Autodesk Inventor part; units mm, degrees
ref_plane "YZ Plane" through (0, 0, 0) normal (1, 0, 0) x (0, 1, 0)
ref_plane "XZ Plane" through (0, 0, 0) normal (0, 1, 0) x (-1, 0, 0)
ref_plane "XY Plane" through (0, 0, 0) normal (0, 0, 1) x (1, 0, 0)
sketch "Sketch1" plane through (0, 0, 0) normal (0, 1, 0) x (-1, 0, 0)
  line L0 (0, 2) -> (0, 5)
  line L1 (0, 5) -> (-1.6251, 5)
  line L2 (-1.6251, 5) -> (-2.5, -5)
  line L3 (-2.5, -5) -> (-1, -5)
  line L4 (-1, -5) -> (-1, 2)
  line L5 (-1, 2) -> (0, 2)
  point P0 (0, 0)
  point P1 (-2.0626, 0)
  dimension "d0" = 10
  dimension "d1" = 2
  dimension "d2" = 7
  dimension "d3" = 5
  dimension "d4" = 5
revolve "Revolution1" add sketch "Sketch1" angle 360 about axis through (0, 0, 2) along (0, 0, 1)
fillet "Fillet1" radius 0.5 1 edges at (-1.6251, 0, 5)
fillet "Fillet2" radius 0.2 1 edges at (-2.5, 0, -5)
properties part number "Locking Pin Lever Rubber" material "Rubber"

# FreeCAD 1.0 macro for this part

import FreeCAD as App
import Part
import Sketcher

V = App.Vector
Q = App.Units.Quantity


def edges_at(feature, points):
    """Names of the edges that pass closest to the given points."""
    edges = feature.Shape.Edges
    near = lambda p: min(range(len(edges)), key=lambda i: edges[i].distToShape(Part.Vertex(*p))[0])
    return sorted({f"Edge{near(p) + 1}" for p in points})


def add_polygon(sketch, points):
    """Adds a closed chain of lines whose ends are joined by coincident constraints."""
    first, n = sketch.GeometryCount, len(points)
    for a, b in zip(points, points[1:] + points[:1]):
        sketch.addGeometry(Part.LineSegment(App.Vector(*a, 0), App.Vector(*b, 0)), False)
    for i in range(n):
        sketch.addConstraint(Sketcher.Constraint("Coincident", first + i, 2, first + (i + 1) % n, 1))

doc = App.newDocument("Part")
body = doc.addObject("PartDesign::Body", "Body")

sketch1 = doc.addObject("Sketcher::SketchObject", "Sketch")
body.addObject(sketch1)
sketch1.AttachmentSupport = (doc.XZ_Plane, [""])
sketch1.MapMode = "FlatFace"
add_polygon(sketch1, [(1, 2), (0, 2), (0, 5), (1.6, 5), (2.5, -5), (1, -5)])
sketch1.addConstraint([
    Sketcher.Constraint("Horizontal", 0),
    Sketcher.Constraint("Vertical", 1),
    Sketcher.Constraint("Horizontal", 2),
    Sketcher.Constraint("Horizontal", 4),
    Sketcher.Constraint("Vertical", 5),
    Sketcher.Constraint("PointOnObject", 0, 2, -2),
    Sketcher.Constraint("DistanceY", 5, 1, 5, 2, 7.0),
    Sketcher.Constraint("DistanceY", -1, 1, 0, 2, 2.0),
    Sketcher.Constraint("DistanceY", -1, 1, 1, 2, 5.0),
    Sketcher.Constraint("DistanceX", 0, 2, 0, 1, 1.0),
    Sketcher.Constraint("Angle", 3, Q("-85 deg")),
    Sketcher.Constraint("DistanceX", 4, 2, 4, 1, 1.5),
])
revolution = doc.addObject("PartDesign::Revolution", "Revolution")
body.addObject(revolution)
revolution.Profile = sketch1
revolution.ReferenceAxis = (sketch1, ["V_Axis"])
revolution.Angle = 360
doc.recompute()

fillet = doc.addObject("PartDesign::Fillet", "Fillet")
body.addObject(fillet)
fillet.Base = (revolution, edges_at(revolution, [(-1.625, 0, 5)]))
fillet.Radius = 0.5
doc.recompute()

fillet2 = doc.addObject("PartDesign::Fillet", "Fillet001")
body.addObject(fillet2)
fillet2.Base = (fillet, edges_at(fillet, [(-2.5, 0, -5)]))
fillet2.Radius = 0.2

doc.recompute()
